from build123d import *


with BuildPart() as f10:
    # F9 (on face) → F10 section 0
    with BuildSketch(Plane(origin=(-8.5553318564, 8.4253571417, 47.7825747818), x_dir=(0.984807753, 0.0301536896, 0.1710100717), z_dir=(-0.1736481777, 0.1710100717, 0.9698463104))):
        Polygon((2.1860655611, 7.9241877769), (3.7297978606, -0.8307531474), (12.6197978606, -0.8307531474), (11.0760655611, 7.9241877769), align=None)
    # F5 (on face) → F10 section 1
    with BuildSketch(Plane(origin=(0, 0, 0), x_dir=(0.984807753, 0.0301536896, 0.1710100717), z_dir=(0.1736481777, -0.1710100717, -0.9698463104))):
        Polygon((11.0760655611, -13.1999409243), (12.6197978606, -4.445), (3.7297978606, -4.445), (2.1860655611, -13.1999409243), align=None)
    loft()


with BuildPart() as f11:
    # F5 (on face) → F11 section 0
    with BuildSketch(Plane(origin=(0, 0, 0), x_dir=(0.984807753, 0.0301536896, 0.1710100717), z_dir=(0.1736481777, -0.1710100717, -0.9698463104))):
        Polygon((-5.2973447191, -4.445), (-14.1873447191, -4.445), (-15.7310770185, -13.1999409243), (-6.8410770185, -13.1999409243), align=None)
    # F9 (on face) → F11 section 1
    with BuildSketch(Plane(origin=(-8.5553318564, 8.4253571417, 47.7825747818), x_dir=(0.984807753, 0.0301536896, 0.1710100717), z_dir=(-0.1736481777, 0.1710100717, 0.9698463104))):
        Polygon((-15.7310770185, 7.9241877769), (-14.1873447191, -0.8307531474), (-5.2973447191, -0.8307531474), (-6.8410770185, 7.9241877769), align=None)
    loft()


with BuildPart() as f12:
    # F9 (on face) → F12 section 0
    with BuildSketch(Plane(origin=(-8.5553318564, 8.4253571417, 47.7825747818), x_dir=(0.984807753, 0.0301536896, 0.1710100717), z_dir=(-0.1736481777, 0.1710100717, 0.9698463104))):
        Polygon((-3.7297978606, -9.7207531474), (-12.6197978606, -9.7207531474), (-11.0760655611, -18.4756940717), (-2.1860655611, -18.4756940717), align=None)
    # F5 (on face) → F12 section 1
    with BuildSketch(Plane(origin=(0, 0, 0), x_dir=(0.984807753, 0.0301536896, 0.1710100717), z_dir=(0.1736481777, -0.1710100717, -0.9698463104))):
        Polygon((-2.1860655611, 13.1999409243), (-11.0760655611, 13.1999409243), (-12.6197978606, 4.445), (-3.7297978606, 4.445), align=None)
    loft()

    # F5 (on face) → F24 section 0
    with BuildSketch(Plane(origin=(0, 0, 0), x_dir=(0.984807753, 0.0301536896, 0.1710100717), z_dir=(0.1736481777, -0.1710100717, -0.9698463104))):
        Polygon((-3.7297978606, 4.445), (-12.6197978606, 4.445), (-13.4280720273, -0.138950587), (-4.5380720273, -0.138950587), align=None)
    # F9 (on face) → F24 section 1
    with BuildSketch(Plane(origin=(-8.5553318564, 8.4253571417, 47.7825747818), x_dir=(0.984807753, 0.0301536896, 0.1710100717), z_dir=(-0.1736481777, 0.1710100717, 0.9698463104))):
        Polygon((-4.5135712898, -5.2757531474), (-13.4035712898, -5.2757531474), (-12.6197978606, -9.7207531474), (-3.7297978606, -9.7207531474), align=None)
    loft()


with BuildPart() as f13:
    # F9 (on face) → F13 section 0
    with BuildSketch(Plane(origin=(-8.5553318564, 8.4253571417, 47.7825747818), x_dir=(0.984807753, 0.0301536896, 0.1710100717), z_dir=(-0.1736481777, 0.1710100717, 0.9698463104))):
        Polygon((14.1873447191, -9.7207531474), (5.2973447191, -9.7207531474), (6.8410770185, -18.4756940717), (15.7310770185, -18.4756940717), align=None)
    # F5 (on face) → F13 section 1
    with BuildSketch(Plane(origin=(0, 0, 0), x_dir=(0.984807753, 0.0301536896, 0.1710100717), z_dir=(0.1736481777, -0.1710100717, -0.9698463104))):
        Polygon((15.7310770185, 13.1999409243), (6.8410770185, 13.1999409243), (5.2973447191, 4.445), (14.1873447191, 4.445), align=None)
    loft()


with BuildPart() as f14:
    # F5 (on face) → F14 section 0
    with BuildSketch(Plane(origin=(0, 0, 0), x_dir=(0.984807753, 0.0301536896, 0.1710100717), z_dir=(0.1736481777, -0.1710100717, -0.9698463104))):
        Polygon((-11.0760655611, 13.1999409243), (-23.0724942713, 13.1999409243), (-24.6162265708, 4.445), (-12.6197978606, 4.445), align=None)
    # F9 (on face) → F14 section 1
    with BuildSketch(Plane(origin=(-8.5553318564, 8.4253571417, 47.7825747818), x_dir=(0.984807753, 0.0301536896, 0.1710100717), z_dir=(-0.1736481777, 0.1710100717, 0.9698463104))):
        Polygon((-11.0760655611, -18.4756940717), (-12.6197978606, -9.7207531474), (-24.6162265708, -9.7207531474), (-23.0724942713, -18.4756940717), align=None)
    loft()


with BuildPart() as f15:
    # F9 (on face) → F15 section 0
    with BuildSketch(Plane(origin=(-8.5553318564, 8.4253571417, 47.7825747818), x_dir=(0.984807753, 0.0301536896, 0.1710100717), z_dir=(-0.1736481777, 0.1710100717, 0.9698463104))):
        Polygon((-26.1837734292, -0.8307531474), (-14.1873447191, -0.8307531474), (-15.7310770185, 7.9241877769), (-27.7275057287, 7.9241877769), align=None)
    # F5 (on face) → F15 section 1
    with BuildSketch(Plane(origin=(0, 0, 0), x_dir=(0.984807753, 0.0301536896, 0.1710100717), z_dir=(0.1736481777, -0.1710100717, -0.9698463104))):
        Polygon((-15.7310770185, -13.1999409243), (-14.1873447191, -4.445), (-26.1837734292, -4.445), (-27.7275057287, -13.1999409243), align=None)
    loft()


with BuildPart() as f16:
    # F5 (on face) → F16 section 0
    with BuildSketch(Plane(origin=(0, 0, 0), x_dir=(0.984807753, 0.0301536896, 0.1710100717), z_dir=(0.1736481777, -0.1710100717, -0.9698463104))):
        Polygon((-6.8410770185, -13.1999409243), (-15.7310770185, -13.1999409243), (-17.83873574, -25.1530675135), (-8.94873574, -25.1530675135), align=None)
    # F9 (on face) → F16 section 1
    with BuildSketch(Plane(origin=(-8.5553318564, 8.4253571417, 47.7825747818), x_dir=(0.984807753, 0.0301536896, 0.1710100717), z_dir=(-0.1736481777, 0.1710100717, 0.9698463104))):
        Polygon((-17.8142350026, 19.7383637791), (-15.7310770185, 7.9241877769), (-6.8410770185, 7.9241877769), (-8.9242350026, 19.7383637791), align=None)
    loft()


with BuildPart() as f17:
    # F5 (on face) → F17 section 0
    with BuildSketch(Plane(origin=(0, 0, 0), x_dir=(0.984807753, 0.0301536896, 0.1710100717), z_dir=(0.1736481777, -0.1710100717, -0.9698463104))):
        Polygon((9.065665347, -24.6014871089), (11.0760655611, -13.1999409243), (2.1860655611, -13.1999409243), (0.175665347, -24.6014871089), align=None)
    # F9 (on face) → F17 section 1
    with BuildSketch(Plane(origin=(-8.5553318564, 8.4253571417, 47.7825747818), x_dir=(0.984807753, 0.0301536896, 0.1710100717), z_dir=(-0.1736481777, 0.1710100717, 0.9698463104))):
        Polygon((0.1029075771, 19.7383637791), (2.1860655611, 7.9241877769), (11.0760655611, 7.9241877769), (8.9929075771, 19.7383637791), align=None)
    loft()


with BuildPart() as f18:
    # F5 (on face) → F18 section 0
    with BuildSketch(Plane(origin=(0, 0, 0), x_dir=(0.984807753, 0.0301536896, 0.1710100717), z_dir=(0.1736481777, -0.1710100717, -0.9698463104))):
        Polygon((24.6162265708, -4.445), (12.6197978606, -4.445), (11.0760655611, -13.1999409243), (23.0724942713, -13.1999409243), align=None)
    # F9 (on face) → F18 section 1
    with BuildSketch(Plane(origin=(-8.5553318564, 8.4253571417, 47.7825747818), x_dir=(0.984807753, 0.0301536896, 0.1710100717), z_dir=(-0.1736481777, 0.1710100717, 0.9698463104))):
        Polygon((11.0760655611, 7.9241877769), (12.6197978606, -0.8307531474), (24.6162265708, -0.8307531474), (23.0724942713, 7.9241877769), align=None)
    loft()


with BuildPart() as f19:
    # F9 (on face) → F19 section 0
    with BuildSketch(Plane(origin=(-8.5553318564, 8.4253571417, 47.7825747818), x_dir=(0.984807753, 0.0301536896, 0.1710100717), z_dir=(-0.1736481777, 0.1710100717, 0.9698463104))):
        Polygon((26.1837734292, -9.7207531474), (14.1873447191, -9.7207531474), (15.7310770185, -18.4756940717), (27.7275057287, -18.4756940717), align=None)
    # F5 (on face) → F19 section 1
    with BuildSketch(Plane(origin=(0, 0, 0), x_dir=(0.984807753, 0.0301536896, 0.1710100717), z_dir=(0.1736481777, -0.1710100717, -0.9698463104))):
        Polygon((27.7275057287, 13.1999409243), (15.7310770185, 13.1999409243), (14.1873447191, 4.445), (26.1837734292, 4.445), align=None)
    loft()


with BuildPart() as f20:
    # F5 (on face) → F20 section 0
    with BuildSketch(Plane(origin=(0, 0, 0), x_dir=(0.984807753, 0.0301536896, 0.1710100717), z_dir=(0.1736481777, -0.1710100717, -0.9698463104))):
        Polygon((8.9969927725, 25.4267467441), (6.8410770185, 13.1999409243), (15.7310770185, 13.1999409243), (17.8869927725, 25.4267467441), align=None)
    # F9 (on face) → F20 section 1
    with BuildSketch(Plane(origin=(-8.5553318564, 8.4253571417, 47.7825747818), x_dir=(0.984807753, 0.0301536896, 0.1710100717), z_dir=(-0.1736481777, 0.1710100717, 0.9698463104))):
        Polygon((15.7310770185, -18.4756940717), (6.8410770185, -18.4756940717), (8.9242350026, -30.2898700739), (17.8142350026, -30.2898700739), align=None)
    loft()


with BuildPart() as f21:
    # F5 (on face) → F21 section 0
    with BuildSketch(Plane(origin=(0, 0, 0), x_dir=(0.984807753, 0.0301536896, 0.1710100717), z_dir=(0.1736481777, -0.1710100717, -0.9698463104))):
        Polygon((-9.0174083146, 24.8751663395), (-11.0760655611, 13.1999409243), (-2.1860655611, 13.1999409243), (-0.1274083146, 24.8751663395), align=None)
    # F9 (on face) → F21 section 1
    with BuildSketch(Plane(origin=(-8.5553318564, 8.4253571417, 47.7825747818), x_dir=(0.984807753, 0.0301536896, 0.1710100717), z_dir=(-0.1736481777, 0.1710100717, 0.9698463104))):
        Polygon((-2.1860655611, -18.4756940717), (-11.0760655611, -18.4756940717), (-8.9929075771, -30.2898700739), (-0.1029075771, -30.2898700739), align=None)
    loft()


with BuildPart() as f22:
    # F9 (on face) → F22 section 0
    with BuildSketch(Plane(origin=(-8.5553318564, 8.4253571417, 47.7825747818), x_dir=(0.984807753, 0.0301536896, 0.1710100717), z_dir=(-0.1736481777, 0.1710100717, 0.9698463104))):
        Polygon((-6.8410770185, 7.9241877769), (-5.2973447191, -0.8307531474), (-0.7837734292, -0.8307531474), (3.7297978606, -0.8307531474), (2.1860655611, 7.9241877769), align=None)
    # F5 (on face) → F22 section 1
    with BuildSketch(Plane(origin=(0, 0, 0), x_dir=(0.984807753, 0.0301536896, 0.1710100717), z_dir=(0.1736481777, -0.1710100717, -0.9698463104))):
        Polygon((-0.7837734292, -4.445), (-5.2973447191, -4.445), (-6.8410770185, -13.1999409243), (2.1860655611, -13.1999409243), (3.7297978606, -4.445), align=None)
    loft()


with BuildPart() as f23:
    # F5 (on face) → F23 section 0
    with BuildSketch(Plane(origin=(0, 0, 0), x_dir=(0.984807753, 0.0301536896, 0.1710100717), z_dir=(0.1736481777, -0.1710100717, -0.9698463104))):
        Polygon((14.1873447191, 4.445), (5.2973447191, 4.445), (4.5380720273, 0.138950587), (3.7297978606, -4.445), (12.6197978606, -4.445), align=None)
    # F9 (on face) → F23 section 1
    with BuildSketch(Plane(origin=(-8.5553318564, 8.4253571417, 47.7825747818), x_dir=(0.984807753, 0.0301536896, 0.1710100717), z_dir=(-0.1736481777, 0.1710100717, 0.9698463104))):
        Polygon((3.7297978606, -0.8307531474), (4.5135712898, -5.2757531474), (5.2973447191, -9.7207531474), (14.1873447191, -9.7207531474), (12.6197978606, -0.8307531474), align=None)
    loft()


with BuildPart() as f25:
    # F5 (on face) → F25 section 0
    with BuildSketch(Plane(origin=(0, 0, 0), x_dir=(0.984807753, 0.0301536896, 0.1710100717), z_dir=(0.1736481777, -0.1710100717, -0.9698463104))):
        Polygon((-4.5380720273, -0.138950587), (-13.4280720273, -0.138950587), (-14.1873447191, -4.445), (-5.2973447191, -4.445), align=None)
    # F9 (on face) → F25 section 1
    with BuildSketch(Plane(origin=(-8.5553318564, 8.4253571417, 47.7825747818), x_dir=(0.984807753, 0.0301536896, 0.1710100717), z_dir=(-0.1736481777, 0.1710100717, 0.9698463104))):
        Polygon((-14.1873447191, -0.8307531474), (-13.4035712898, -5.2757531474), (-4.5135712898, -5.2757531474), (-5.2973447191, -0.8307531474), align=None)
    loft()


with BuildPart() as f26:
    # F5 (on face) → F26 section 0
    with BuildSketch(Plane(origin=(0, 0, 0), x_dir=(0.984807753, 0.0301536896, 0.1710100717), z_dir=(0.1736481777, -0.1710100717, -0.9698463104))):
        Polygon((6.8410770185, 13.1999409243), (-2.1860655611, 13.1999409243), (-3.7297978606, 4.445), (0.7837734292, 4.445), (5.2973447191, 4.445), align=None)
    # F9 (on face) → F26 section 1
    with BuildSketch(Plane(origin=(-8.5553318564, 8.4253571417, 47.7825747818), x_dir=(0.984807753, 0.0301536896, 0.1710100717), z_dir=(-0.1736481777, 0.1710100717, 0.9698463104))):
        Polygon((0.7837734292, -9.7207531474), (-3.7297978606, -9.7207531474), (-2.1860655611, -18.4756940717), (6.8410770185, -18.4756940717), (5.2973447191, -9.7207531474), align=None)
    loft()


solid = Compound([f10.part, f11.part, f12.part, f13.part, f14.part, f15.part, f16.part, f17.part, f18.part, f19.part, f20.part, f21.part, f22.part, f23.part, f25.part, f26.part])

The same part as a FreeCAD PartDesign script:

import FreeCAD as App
import Part
import Sketcher
Q = App.Units.Quantity


def add_polygon(sketch, points):
    """Adds a closed chain of lines whose ends are joined by coincident constraints."""
    first, n = sketch.GeometryCount, len(points)
    for a, b in zip(points, points[1:] + points[:1]):
        sketch.addGeometry(Part.LineSegment(App.Vector(*a, 0), App.Vector(*b, 0)), False)
    for i in range(n):
        sketch.addConstraint(Sketcher.Constraint("Coincident", first + i, 2, first + (i + 1) % n, 1))

doc = App.newDocument("Part")
body = doc.addObject("PartDesign::Body", "Body")

# Sketch on an angled plane
sketch1 = body.newObject("Sketcher::SketchObject", "Sketch")
sketch1.Placement = App.Placement(App.Vector(-8.555332, 8.425357, 47.782575), App.Rotation(App.Vector(0.984807753, 0.03015369, 0.171010072), App.Vector(0, 0.984807753, -0.173648178), App.Vector(-0.173648178, 0.171010072, 0.96984631), "ZXY"))
add_polygon(sketch1, [(2, 8), (4, -1), (13, -1), (11, 8)])  # lines 0-3
sketch1.addConstraint([
    Sketcher.Constraint("Horizontal", 1),
    Sketcher.Constraint("Horizontal", 3),
    Sketcher.Constraint("Parallel", 0, 2),
    Sketcher.Constraint("Angle", 0, Q("-80 deg")),
    Sketcher.Constraint("DistanceX", 1, 1, 1, 2, Q("0.35 in")),
    Sketcher.Constraint("Distance", 0, Q("0.35 in")),
    Sketcher.Constraint("DistanceX", -1, 1, 0, 2, Q("3.729798 mm")),
    Sketcher.Constraint("DistanceY", 0, 2, -1, 1, Q("0.830753 mm")),
])

# Sketch on an angled plane
sketch2 = body.newObject("Sketcher::SketchObject", "Sketch001")
sketch2.Placement = App.Placement(App.Vector(0, 0, 0), App.Rotation(App.Vector(0.984807753, 0.03015369, 0.171010072), App.Vector(0, -0.984807753, 0.173648178), App.Vector(0.173648178, -0.171010072, -0.96984631), "ZXY"))
add_polygon(sketch2, [(11, -13), (13, -4), (4, -4), (2, -13)])  # lines 0-3
sketch2.addConstraint([
    Sketcher.Constraint("Horizontal", 1),
    Sketcher.Constraint("Horizontal", 3),
    Sketcher.Constraint("Parallel", 0, 2),
    Sketcher.Constraint("Angle", 0, Q("80 deg")),
    Sketcher.Constraint("DistanceX", 1, 2, 1, 1, Q("0.35 in")),
    Sketcher.Constraint("Distance", 0, Q("0.35 in")),
    Sketcher.Constraint("DistanceY", 0, 2, -1, 1, Q("0.175 in")),
    Sketcher.Constraint("DistanceX", -1, 1, 0, 2, Q("12.619798 mm")),
])

additiveloft = body.newObject("PartDesign::AdditiveLoft", "AdditiveLoft")
additiveloft.Profile = sketch1
additiveloft.Sections = [sketch2]
body2 = doc.addObject("PartDesign::Body", "Body001")

# Sketch on an angled plane
sketch3 = body2.newObject("Sketcher::SketchObject", "Sketch002")
sketch3.Placement = App.Placement(App.Vector(0, 0, 0), App.Rotation(App.Vector(0.984807753, 0.03015369, 0.171010072), App.Vector(0, -0.984807753, 0.173648178), App.Vector(0.173648178, -0.171010072, -0.96984631), "ZXY"))
add_polygon(sketch3, [(-5, -4), (-14, -4), (-16, -13), (-7, -13)])  # lines 0-3
sketch3.addConstraint([
    Sketcher.Constraint("Horizontal", 0),
    Sketcher.Constraint("Horizontal", 2),
    Sketcher.Constraint("Parallel", 1, 3),
    Sketcher.Constraint("Angle", 1, Q("-100 deg")),
    Sketcher.Constraint("DistanceX", 0, 2, 0, 1, Q("0.35 in")),
    Sketcher.Constraint("Distance", 1, Q("0.35 in")),
    Sketcher.Constraint("DistanceY", 0, 2, -1, 1, Q("0.175 in")),
    Sketcher.Constraint("DistanceX", 0, 2, -1, 1, Q("14.187345 mm")),
])

# Sketch on an angled plane
sketch4 = body2.newObject("Sketcher::SketchObject", "Sketch003")
sketch4.Placement = App.Placement(App.Vector(-8.555332, 8.425357, 47.782575), App.Rotation(App.Vector(0.984807753, 0.03015369, 0.171010072), App.Vector(0, 0.984807753, -0.173648178), App.Vector(-0.173648178, 0.171010072, 0.96984631), "ZXY"))
add_polygon(sketch4, [(-16, 8), (-14, -1), (-5, -1), (-7, 8)])  # lines 0-3
sketch4.addConstraint([
    Sketcher.Constraint("Horizontal", 1),
    Sketcher.Constraint("Horizontal", 3),
    Sketcher.Constraint("Parallel", 0, 2),
    Sketcher.Constraint("Angle", 0, Q("-80 deg")),
    Sketcher.Constraint("DistanceX", 1, 1, 1, 2, Q("0.35 in")),
    Sketcher.Constraint("Distance", 0, Q("0.35 in")),
    Sketcher.Constraint("DistanceX", 0, 2, -1, 1, Q("14.187345 mm")),
    Sketcher.Constraint("DistanceY", 0, 2, -1, 1, Q("0.830753 mm")),
])

additiveloft2 = body2.newObject("PartDesign::AdditiveLoft", "AdditiveLoft001")
additiveloft2.Profile = sketch3
additiveloft2.Sections = [sketch4]
body3 = doc.addObject("PartDesign::Body", "Body002")

# Sketch on an angled plane
sketch5 = body3.newObject("Sketcher::SketchObject", "Sketch004")
sketch5.Placement = App.Placement(App.Vector(-8.555332, 8.425357, 47.782575), App.Rotation(App.Vector(0.984807753, 0.03015369, 0.171010072), App.Vector(0, 0.984807753, -0.173648178), App.Vector(-0.173648178, 0.171010072, 0.96984631), "ZXY"))
add_polygon(sketch5, [(-4, -10), (-13, -10), (-11, -18), (-2, -18)])  # lines 0-3
sketch5.addConstraint([
    Sketcher.Constraint("Horizontal", 0),
    Sketcher.Constraint("Horizontal", 2),
    Sketcher.Constraint("Parallel", 1, 3),
    Sketcher.Constraint("Angle", 1, Q("-80 deg")),
    Sketcher.Constraint("DistanceX", 0, 2, 0, 1, Q("0.35 in")),
    Sketcher.Constraint("Distance", 1, Q("0.35 in")),
    Sketcher.Constraint("DistanceX", 0, 2, -1, 1, Q("12.619798 mm")),
    Sketcher.Constraint("DistanceY", 0, 2, -1, 1, Q("9.720753 mm")),
])

# Sketch on an angled plane
sketch6 = body3.newObject("Sketcher::SketchObject", "Sketch005")
sketch6.Placement = App.Placement(App.Vector(0, 0, 0), App.Rotation(App.Vector(0.984807753, 0.03015369, 0.171010072), App.Vector(0, -0.984807753, 0.173648178), App.Vector(0.173648178, -0.171010072, -0.96984631), "ZXY"))
add_polygon(sketch6, [(-2, 13), (-11, 13), (-13, 4), (-4, 4)])  # lines 0-3
sketch6.addConstraint([
    Sketcher.Constraint("Horizontal", 0),
    Sketcher.Constraint("Horizontal", 2),
    Sketcher.Constraint("Parallel", 1, 3),
    Sketcher.Constraint("Angle", 1, Q("-100 deg")),
    Sketcher.Constraint("DistanceX", 0, 2, 0, 1, Q("0.35 in")),
    Sketcher.Constraint("Distance", 1, Q("0.35 in")),
    Sketcher.Constraint("DistanceY", -1, 1, 1, 2, Q("0.175 in")),
    Sketcher.Constraint("DistanceX", 0, 2, -1, 1, Q("11.076066 mm")),
])

additiveloft3 = body3.newObject("PartDesign::AdditiveLoft", "AdditiveLoft002")
additiveloft3.Profile = sketch5
additiveloft3.Sections = [sketch6]

# Sketch on an angled plane
sketch7 = body3.newObject("Sketcher::SketchObject", "Sketch006")
sketch7.Placement = App.Placement(App.Vector(0, 0, 0), App.Rotation(App.Vector(0.984807753, 0.03015369, 0.171010072), App.Vector(0, -0.984807753, 0.173648178), App.Vector(0.173648178, -0.171010072, -0.96984631), "ZXY"))
add_polygon(sketch7, [(-3.7, 4.4), (-12.6, 4.4), (-13.4, -0.1), (-4.5, -0.1)])  # lines 0-3
sketch7.addConstraint([
    Sketcher.Constraint("Horizontal", 0),
    Sketcher.Constraint("Horizontal", 2),
    Sketcher.Constraint("Parallel", 1, 3),
    Sketcher.Constraint("Angle", 1, Q("-100 deg")),
    Sketcher.Constraint("DistanceX", 0, 2, 0, 1, Q("0.35 in")),
    Sketcher.Constraint("DistanceY", -1, 1, 0, 2, Q("0.175 in")),
    Sketcher.Constraint("DistanceY", 1, 2, -1, 1, Q("0.138951 mm")),
    Sketcher.Constraint("DistanceX", 0, 2, -1, 1, Q("12.619798 mm")),
])

# Sketch on an angled plane
sketch8 = body3.newObject("Sketcher::SketchObject", "Sketch007")
sketch8.Placement = App.Placement(App.Vector(-8.555332, 8.425357, 47.782575), App.Rotation(App.Vector(0.984807753, 0.03015369, 0.171010072), App.Vector(0, 0.984807753, -0.173648178), App.Vector(-0.173648178, 0.171010072, 0.96984631), "ZXY"))
add_polygon(sketch8, [(-4.5, -5.3), (-13.4, -5.3), (-12.6, -9.7), (-3.7, -9.7)])  # lines 0-3
sketch8.addConstraint([
    Sketcher.Constraint("Horizontal", 0),
    Sketcher.Constraint("Horizontal", 2),
    Sketcher.Constraint("Parallel", 1, 3),
    Sketcher.Constraint("Angle", 1, Q("-80 deg")),
    Sketcher.Constraint("DistanceX", 0, 2, 0, 1, Q("0.35 in")),
    Sketcher.Constraint("DistanceY", 1, 2, 0, 2, Q("0.175 in")),
    Sketcher.Constraint("DistanceX", 0, 2, -1, 1, Q("13.403571 mm")),
    Sketcher.Constraint("DistanceY", 0, 2, -1, 1, Q("5.275753 mm")),
])

additiveloft4 = body3.newObject("PartDesign::AdditiveLoft", "AdditiveLoft003")
additiveloft4.Profile = sketch7
additiveloft4.Sections = [sketch8]
body4 = doc.addObject("PartDesign::Body", "Body003")

# Sketch on an angled plane
sketch9 = body4.newObject("Sketcher::SketchObject", "Sketch008")
sketch9.Placement = App.Placement(App.Vector(-8.555332, 8.425357, 47.782575), App.Rotation(App.Vector(0.984807753, 0.03015369, 0.171010072), App.Vector(0, 0.984807753, -0.173648178), App.Vector(-0.173648178, 0.171010072, 0.96984631), "ZXY"))
add_polygon(sketch9, [(14, -10), (5, -10), (7, -18), (16, -18)])  # lines 0-3
sketch9.addConstraint([
    Sketcher.Constraint("Horizontal", 0),
    Sketcher.Constraint("Horizontal", 2),
    Sketcher.Constraint("Parallel", 1, 3),
    Sketcher.Constraint("Angle", 1, Q("-80 deg")),
    Sketcher.Constraint("DistanceX", 0, 2, 0, 1, Q("0.35 in")),
    Sketcher.Constraint("Distance", 1, Q("0.35 in")),
    Sketcher.Constraint("DistanceX", -1, 1, 0, 2, Q("5.297345 mm")),
    Sketcher.Constraint("DistanceY", 0, 2, -1, 1, Q("9.720753 mm")),
])

# Sketch on an angled plane
sketch10 = body4.newObject("Sketcher::SketchObject", "Sketch009")
sketch10.Placement = App.Placement(App.Vector(0, 0, 0), App.Rotation(App.Vector(0.984807753, 0.03015369, 0.171010072), App.Vector(0, -0.984807753, 0.173648178), App.Vector(0.173648178, -0.171010072, -0.96984631), "ZXY"))
add_polygon(sketch10, [(16, 13), (7, 13), (5, 4), (14, 4)])  # lines 0-3
sketch10.addConstraint([
    Sketcher.Constraint("Horizontal", 0),
    Sketcher.Constraint("Horizontal", 2),
    Sketcher.Constraint("Parallel", 1, 3),
    Sketcher.Constraint("Angle", 1, Q("-100 deg")),
    Sketcher.Constraint("DistanceX", 0, 2, 0, 1, Q("0.35 in")),
    Sketcher.Constraint("Distance", 1, Q("0.35 in")),
    Sketcher.Constraint("DistanceY", -1, 1, 1, 2, Q("0.175 in")),
    Sketcher.Constraint("DistanceX", -1, 1, 0, 2, Q("6.841077 mm")),
])

additiveloft5 = body4.newObject("PartDesign::AdditiveLoft", "AdditiveLoft004")
additiveloft5.Profile = sketch9
additiveloft5.Sections = [sketch10]
body5 = doc.addObject("PartDesign::Body", "Body004")

# Sketch on an angled plane
sketch11 = body5.newObject("Sketcher::SketchObject", "Sketch010")
sketch11.Placement = App.Placement(App.Vector(0, 0, 0), App.Rotation(App.Vector(0.984807753, 0.03015369, 0.171010072), App.Vector(0, -0.984807753, 0.173648178), App.Vector(0.173648178, -0.171010072, -0.96984631), "ZXY"))
add_polygon(sketch11, [(-11, 13), (-23, 13), (-25, 4), (-13, 4)])  # lines 0-3
sketch11.addConstraint([
    Sketcher.Constraint("Horizontal", 0),
    Sketcher.Constraint("Horizontal", 2),
    Sketcher.Constraint("Parallel", 1, 3),
    Sketcher.Constraint("Angle", 1, Q("-100 deg")),
    Sketcher.Constraint("Distance", 1, Q("0.35 in")),
    Sketcher.Constraint("DistanceY", -1, 1, 1, 2, Q("0.175 in")),
    Sketcher.Constraint("DistanceX", 0, 2, 0, 1, Q("11.996429 mm")),
    Sketcher.Constraint("DistanceX", 0, 2, -1, 1, Q("23.072494 mm")),
])

# Sketch on an angled plane
sketch12 = body5.newObject("Sketcher::SketchObject", "Sketch011")
sketch12.Placement = App.Placement(App.Vector(-8.555332, 8.425357, 47.782575), App.Rotation(App.Vector(0.984807753, 0.03015369, 0.171010072), App.Vector(0, 0.984807753, -0.173648178), App.Vector(-0.173648178, 0.171010072, 0.96984631), "ZXY"))
add_polygon(sketch12, [(-11, -18), (-13, -10), (-25, -10), (-23, -18)])  # lines 0-3
sketch12.addConstraint([
    Sketcher.Constraint("Horizontal", 1),
    Sketcher.Constraint("Horizontal", 3),
    Sketcher.Constraint("Parallel", 0, 2),
    Sketcher.Constraint("Angle", 0, Q("100 deg")),
    Sketcher.Constraint("Distance", 0, Q("0.35 in")),
    Sketcher.Constraint("DistanceX", 1, 2, 1, 1, Q("11.996429 mm")),
    Sketcher.Constraint("DistanceX", 0, 2, -1, 1, Q("12.619798 mm")),
    Sketcher.Constraint("DistanceY", 0, 2, -1, 1, Q("9.720753 mm")),
])

additiveloft6 = body5.newObject("PartDesign::AdditiveLoft", "AdditiveLoft005")
additiveloft6.Profile = sketch11
additiveloft6.Sections = [sketch12]
body6 = doc.addObject("PartDesign::Body", "Body005")

# Sketch on an angled plane
sketch13 = body6.newObject("Sketcher::SketchObject", "Sketch012")
sketch13.Placement = App.Placement(App.Vector(-8.555332, 8.425357, 47.782575), App.Rotation(App.Vector(0.984807753, 0.03015369, 0.171010072), App.Vector(0, 0.984807753, -0.173648178), App.Vector(-0.173648178, 0.171010072, 0.96984631), "ZXY"))
add_polygon(sketch13, [(-26, -1), (-14, -1), (-16, 8), (-28, 8)])  # lines 0-3
sketch13.addConstraint([
    Sketcher.Constraint("Horizontal", 0),
    Sketcher.Constraint("Horizontal", 2),
    Sketcher.Constraint("Parallel", 1, 3),
    Sketcher.Constraint("Angle", 1, Q("100 deg")),
    Sketcher.Constraint("Distance", 1, Q("0.35 in")),
    Sketcher.Constraint("DistanceX", 0, 1, 0, 2, Q("11.996429 mm")),
    Sketcher.Constraint("DistanceX", 0, 2, -1, 1, Q("14.187345 mm")),
    Sketcher.Constraint("DistanceY", 0, 2, -1, 1, Q("0.830753 mm")),
])

# Sketch on an angled plane
sketch14 = body6.newObject("Sketcher::SketchObject", "Sketch013")
sketch14.Placement = App.Placement(App.Vector(0, 0, 0), App.Rotation(App.Vector(0.984807753, 0.03015369, 0.171010072), App.Vector(0, -0.984807753, 0.173648178), App.Vector(0.173648178, -0.171010072, -0.96984631), "ZXY"))
add_polygon(sketch14, [(-16, -13), (-14, -4), (-26, -4), (-28, -13)])  # lines 0-3
sketch14.addConstraint([
    Sketcher.Constraint("Horizontal", 1),
    Sketcher.Constraint("Horizontal", 3),
    Sketcher.Constraint("Parallel", 0, 2),
    Sketcher.Constraint("Angle", 0, Q("80 deg")),
    Sketcher.Constraint("Distance", 0, Q("0.35 in")),
    Sketcher.Constraint("DistanceY", 0, 2, -1, 1, Q("0.175 in")),
    Sketcher.Constraint("DistanceX", 1, 2, 1, 1, Q("11.996429 mm")),
    Sketcher.Constraint("DistanceX", 0, 2, -1, 1, Q("14.187345 mm")),
])

additiveloft7 = body6.newObject("PartDesign::AdditiveLoft", "AdditiveLoft006")
additiveloft7.Profile = sketch13
additiveloft7.Sections = [sketch14]
body7 = doc.addObject("PartDesign::Body", "Body006")

# Sketch on an angled plane
sketch15 = body7.newObject("Sketcher::SketchObject", "Sketch014")
sketch15.Placement = App.Placement(App.Vector(0, 0, 0), App.Rotation(App.Vector(0.984807753, 0.03015369, 0.171010072), App.Vector(0, -0.984807753, 0.173648178), App.Vector(0.173648178, -0.171010072, -0.96984631), "ZXY"))
add_polygon(sketch15, [(-7, -13), (-16, -13), (-18, -25), (-9, -25)])  # lines 0-3
sketch15.addConstraint([
    Sketcher.Constraint("Horizontal", 0),
    Sketcher.Constraint("Horizontal", 2),
    Sketcher.Constraint("Parallel", 1, 3),
    Sketcher.Constraint("Angle", 1, Q("-100 deg")),
    Sketcher.Constraint("DistanceX", 0, 2, 0, 1, Q("0.35 in")),
    Sketcher.Constraint("DistanceY", 0, 2, -1, 1, Q("13.199941 mm")),
    Sketcher.Constraint("DistanceX", 1, 2, 0, 2, Q("2.107659 mm")),
    Sketcher.Constraint("DistanceX", 0, 2, -1, 1, Q("15.731077 mm")),
])

# Sketch on an angled plane
sketch16 = body7.newObject("Sketcher::SketchObject", "Sketch015")
sketch16.Placement = App.Placement(App.Vector(-8.555332, 8.425357, 47.782575), App.Rotation(App.Vector(0.984807753, 0.03015369, 0.171010072), App.Vector(0, 0.984807753, -0.173648178), App.Vector(-0.173648178, 0.171010072, 0.96984631), "ZXY"))
add_polygon(sketch16, [(-18, 20), (-16, 8), (-7, 8), (-9, 20)])  # lines 0-3
sketch16.addConstraint([
    Sketcher.Constraint("Horizontal", 1),
    Sketcher.Constraint("Horizontal", 3),
    Sketcher.Constraint("Parallel", 0, 2),
    Sketcher.Constraint("Angle", 0, Q("-80 deg")),
    Sketcher.Constraint("DistanceX", 1, 1, 1, 2, Q("0.35 in")),
    Sketcher.Constraint("Distance", 0, Q("11.996429 mm")),
    Sketcher.Constraint("DistanceX", 0, 2, -1, 1, Q("15.731077 mm")),
    Sketcher.Constraint("DistanceY", -1, 1, 0, 2, Q("7.924188 mm")),
])

additiveloft8 = body7.newObject("PartDesign::AdditiveLoft", "AdditiveLoft007")
additiveloft8.Profile = sketch15
additiveloft8.Sections = [sketch16]
body8 = doc.addObject("PartDesign::Body", "Body007")

# Sketch on an angled plane
sketch17 = body8.newObject("Sketcher::SketchObject", "Sketch016")
sketch17.Placement = App.Placement(App.Vector(0, 0, 0), App.Rotation(App.Vector(0.984807753, 0.03015369, 0.171010072), App.Vector(0, -0.984807753, 0.173648178), App.Vector(0.173648178, -0.171010072, -0.96984631), "ZXY"))
add_polygon(sketch17, [(9, -25), (11, -13), (2, -13), (0, -25)])  # lines 0-3
sketch17.addConstraint([
    Sketcher.Constraint("Horizontal", 1),
    Sketcher.Constraint("Horizontal", 3),
    Sketcher.Constraint("Parallel", 0, 2),
    Sketcher.Constraint("Angle", 0, Q("80 deg")),
    Sketcher.Constraint("DistanceX", 1, 2, 1, 1, Q("0.35 in")),
    Sketcher.Constraint("DistanceX", 2, 2, 1, 2, Q("2.0104 mm")),
    Sketcher.Constraint("DistanceY", 0, 2, -1, 1, Q("13.199941 mm")),
    Sketcher.Constraint("DistanceX", -1, 1, 0, 2, Q("11.076066 mm")),
])

# Sketch on an angled plane
sketch18 = body8.newObject("Sketcher::SketchObject", "Sketch017")
sketch18.Placement = App.Placement(App.Vector(-8.555332, 8.425357, 47.782575), App.Rotation(App.Vector(0.984807753, 0.03015369, 0.171010072), App.Vector(0, 0.984807753, -0.173648178), App.Vector(-0.173648178, 0.171010072, 0.96984631), "ZXY"))
add_polygon(sketch18, [(0, 20), (2, 8), (11, 8), (9, 20)])  # lines 0-3
sketch18.addConstraint([
    Sketcher.Constraint("Horizontal", 1),
    Sketcher.Constraint("Horizontal", 3),
    Sketcher.Constraint("Parallel", 0, 2),
    Sketcher.Constraint("Angle", 0, Q("-80 deg")),
    Sketcher.Constraint("DistanceX", 1, 1, 1, 2, Q("0.35 in")),
    Sketcher.Constraint("Distance", 0, Q("11.996429 mm")),
    Sketcher.Constraint("DistanceX", -1, 1, 0, 2, Q("2.186066 mm")),
    Sketcher.Constraint("DistanceY", -1, 1, 0, 2, Q("7.924188 mm")),
])

additiveloft9 = body8.newObject("PartDesign::AdditiveLoft", "AdditiveLoft008")
additiveloft9.Profile = sketch17
additiveloft9.Sections = [sketch18]
body9 = doc.addObject("PartDesign::Body", "Body008")

# Sketch on an angled plane
sketch19 = body9.newObject("Sketcher::SketchObject", "Sketch018")
sketch19.Placement = App.Placement(App.Vector(0, 0, 0), App.Rotation(App.Vector(0.984807753, 0.03015369, 0.171010072), App.Vector(0, -0.984807753, 0.173648178), App.Vector(0.173648178, -0.171010072, -0.96984631), "ZXY"))
add_polygon(sketch19, [(25, -4), (13, -4), (11, -13), (23, -13)])  # lines 0-3
sketch19.addConstraint([
    Sketcher.Constraint("Horizontal", 0),
    Sketcher.Constraint("Horizontal", 2),
    Sketcher.Constraint("Parallel", 1, 3),
    Sketcher.Constraint("Angle", 1, Q("-100 deg")),
    Sketcher.Constraint("Distance", 1, Q("0.35 in")),
    Sketcher.Constraint("DistanceY", 0, 2, -1, 1, Q("0.175 in")),
    Sketcher.Constraint("DistanceX", 0, 2, 0, 1, Q("11.996429 mm")),
    Sketcher.Constraint("DistanceX", -1, 1, 0, 2, Q("12.619798 mm")),
])

# Sketch on an angled plane
sketch20 = body9.newObject("Sketcher::SketchObject", "Sketch019")
sketch20.Placement = App.Placement(App.Vector(-8.555332, 8.425357, 47.782575), App.Rotation(App.Vector(0.984807753, 0.03015369, 0.171010072), App.Vector(0, 0.984807753, -0.173648178), App.Vector(-0.173648178, 0.171010072, 0.96984631), "ZXY"))
add_polygon(sketch20, [(11, 8), (13, -1), (25, -1), (23, 8)])  # lines 0-3
sketch20.addConstraint([
    Sketcher.Constraint("Horizontal", 1),
    Sketcher.Constraint("Horizontal", 3),
    Sketcher.Constraint("Parallel", 0, 2),
    Sketcher.Constraint("Angle", 0, Q("-80 deg")),
    Sketcher.Constraint("Distance", 0, Q("0.35 in")),
    Sketcher.Constraint("DistanceX", 1, 1, 1, 2, Q("11.996429 mm")),
    Sketcher.Constraint("DistanceX", -1, 1, 0, 2, Q("12.619798 mm")),
    Sketcher.Constraint("DistanceY", 0, 2, -1, 1, Q("0.830753 mm")),
])

additiveloft10 = body9.newObject("PartDesign::AdditiveLoft", "AdditiveLoft009")
additiveloft10.Profile = sketch19
additiveloft10.Sections = [sketch20]
body10 = doc.addObject("PartDesign::Body", "Body009")

# Sketch on an angled plane
sketch21 = body10.newObject("Sketcher::SketchObject", "Sketch020")
sketch21.Placement = App.Placement(App.Vector(-8.555332, 8.425357, 47.782575), App.Rotation(App.Vector(0.984807753, 0.03015369, 0.171010072), App.Vector(0, 0.984807753, -0.173648178), App.Vector(-0.173648178, 0.171010072, 0.96984631), "ZXY"))
add_polygon(sketch21, [(26, -10), (14, -10), (16, -18), (28, -18)])  # lines 0-3
sketch21.addConstraint([
    Sketcher.Constraint("Horizontal", 0),
    Sketcher.Constraint("Horizontal", 2),
    Sketcher.Constraint("Parallel", 1, 3),
    Sketcher.Constraint("Angle", 1, Q("-80 deg")),
    Sketcher.Constraint("Distance", 1, Q("0.35 in")),
    Sketcher.Constraint("DistanceX", 0, 2, 0, 1, Q("11.996429 mm")),
    Sketcher.Constraint("DistanceX", -1, 1, 0, 2, Q("14.187345 mm")),
    Sketcher.Constraint("DistanceY", 0, 2, -1, 1, Q("9.720753 mm")),
])

# Sketch on an angled plane
sketch22 = body10.newObject("Sketcher::SketchObject", "Sketch021")
sketch22.Placement = App.Placement(App.Vector(0, 0, 0), App.Rotation(App.Vector(0.984807753, 0.03015369, 0.171010072), App.Vector(0, -0.984807753, 0.173648178), App.Vector(0.173648178, -0.171010072, -0.96984631), "ZXY"))
add_polygon(sketch22, [(28, 13), (16, 13), (14, 4), (26, 4)])  # lines 0-3
sketch22.addConstraint([
    Sketcher.Constraint("Horizontal", 0),
    Sketcher.Constraint("Horizontal", 2),
    Sketcher.Constraint("Parallel", 1, 3),
    Sketcher.Constraint("Angle", 1, Q("-100 deg")),
    Sketcher.Constraint("Distance", 1, Q("0.35 in")),
    Sketcher.Constraint("DistanceY", -1, 1, 1, 2, Q("0.175 in")),
    Sketcher.Constraint("DistanceX", 0, 2, 0, 1, Q("11.996429 mm")),
    Sketcher.Constraint("DistanceX", -1, 1, 0, 2, Q("15.731077 mm")),
])

additiveloft11 = body10.newObject("PartDesign::AdditiveLoft", "AdditiveLoft010")
additiveloft11.Profile = sketch21
additiveloft11.Sections = [sketch22]
body11 = doc.addObject("PartDesign::Body", "Body010")

# Sketch on an angled plane
sketch23 = body11.newObject("Sketcher::SketchObject", "Sketch022")
sketch23.Placement = App.Placement(App.Vector(0, 0, 0), App.Rotation(App.Vector(0.984807753, 0.03015369, 0.171010072), App.Vector(0, -0.984807753, 0.173648178), App.Vector(0.173648178, -0.171010072, -0.96984631), "ZXY"))
add_polygon(sketch23, [(9, 25), (7, 13), (16, 13), (18, 25)])  # lines 0-3
sketch23.addConstraint([
    Sketcher.Constraint("Horizontal", 1),
    Sketcher.Constraint("Horizontal", 3),
    Sketcher.Constraint("Parallel", 0, 2),
    Sketcher.Constraint("Angle", 0, Q("-100 deg")),
    Sketcher.Constraint("DistanceX", 1, 1, 1, 2, Q("0.35 in")),
    Sketcher.Constraint("DistanceY", -1, 1, 0, 2, Q("13.199941 mm")),
    Sketcher.Constraint("Distance", 0, Q("12.415424 mm")),
    Sketcher.Constraint("DistanceX", -1, 1, 0, 2, Q("6.841077 mm")),
])

# Sketch on an angled plane
sketch24 = body11.newObject("Sketcher::SketchObject", "Sketch023")
sketch24.Placement = App.Placement(App.Vector(-8.555332, 8.425357, 47.782575), App.Rotation(App.Vector(0.984807753, 0.03015369, 0.171010072), App.Vector(0, 0.984807753, -0.173648178), App.Vector(-0.173648178, 0.171010072, 0.96984631), "ZXY"))
add_polygon(sketch24, [(16, -18), (7, -18), (9, -30), (18, -30)])  # lines 0-3
sketch24.addConstraint([
    Sketcher.Constraint("Horizontal", 0),
    Sketcher.Constraint("Horizontal", 2),
    Sketcher.Constraint("Parallel", 1, 3),
    Sketcher.Constraint("Angle", 1, Q("-80 deg")),
    Sketcher.Constraint("DistanceX", 0, 2, 0, 1, Q("0.35 in")),
    Sketcher.Constraint("Distance", 1, Q("11.996429 mm")),
    Sketcher.Constraint("DistanceY", 1, 2, -1, 1, Q("30.28987 mm")),
    Sketcher.Constraint("DistanceX", -1, 1, 0, 2, Q("6.841077 mm")),
])

additiveloft12 = body11.newObject("PartDesign::AdditiveLoft", "AdditiveLoft011")
additiveloft12.Profile = sketch23
additiveloft12.Sections = [sketch24]
body12 = doc.addObject("PartDesign::Body", "Body011")

# Sketch on an angled plane
sketch25 = body12.newObject("Sketcher::SketchObject", "Sketch024")
sketch25.Placement = App.Placement(App.Vector(0, 0, 0), App.Rotation(App.Vector(0.984807753, 0.03015369, 0.171010072), App.Vector(0, -0.984807753, 0.173648178), App.Vector(0.173648178, -0.171010072, -0.96984631), "ZXY"))
add_polygon(sketch25, [(-9, 25), (-11, 13), (-2, 13), (0, 25)])  # lines 0-3
sketch25.addConstraint([
    Sketcher.Constraint("Horizontal", 1),
    Sketcher.Constraint("Horizontal", 3),
    Sketcher.Constraint("Parallel", 0, 2),
    Sketcher.Constraint("Angle", 0, Q("-100 deg")),
    Sketcher.Constraint("DistanceX", 1, 1, 1, 2, Q("0.35 in")),
    Sketcher.Constraint("DistanceY", -1, 1, 0, 2, Q("13.199941 mm")),
    Sketcher.Constraint("DistanceX", 2, 2, -1, 1, Q("0.127408 mm")),
    Sketcher.Constraint("Distance", 0, Q("11.855335 mm")),
])

# Sketch on an angled plane
sketch26 = body12.newObject("Sketcher::SketchObject", "Sketch025")
sketch26.Placement = App.Placement(App.Vector(-8.555332, 8.425357, 47.782575), App.Rotation(App.Vector(0.984807753, 0.03015369, 0.171010072), App.Vector(0, 0.984807753, -0.173648178), App.Vector(-0.173648178, 0.171010072, 0.96984631), "ZXY"))
add_polygon(sketch26, [(-2, -18), (-11, -18), (-9, -30), (0, -30)])  # lines 0-3
sketch26.addConstraint([
    Sketcher.Constraint("Horizontal", 0),
    Sketcher.Constraint("Horizontal", 2),
    Sketcher.Constraint("Parallel", 1, 3),
    Sketcher.Constraint("Angle", 1, Q("-80 deg")),
    Sketcher.Constraint("DistanceX", 0, 2, 0, 1, Q("0.35 in")),
    Sketcher.Constraint("Distance", 1, Q("11.996429 mm")),
    Sketcher.Constraint("DistanceY", 1, 2, -1, 1, Q("30.28987 mm")),
    Sketcher.Constraint("DistanceX", 0, 2, -1, 1, Q("11.076066 mm")),
])

additiveloft13 = body12.newObject("PartDesign::AdditiveLoft", "AdditiveLoft012")
additiveloft13.Profile = sketch25
additiveloft13.Sections = [sketch26]
body13 = doc.addObject("PartDesign::Body", "Body012")

# Sketch on an angled plane
sketch27 = body13.newObject("Sketcher::SketchObject", "Sketch026")
sketch27.Placement = App.Placement(App.Vector(-8.555332, 8.425357, 47.782575), App.Rotation(App.Vector(0.984807753, 0.03015369, 0.171010072), App.Vector(0, 0.984807753, -0.173648178), App.Vector(-0.173648178, 0.171010072, 0.96984631), "ZXY"))
add_polygon(sketch27, [(-7, 8), (-5, -1), (4, -1), (2, 8)])  # lines 0-3
sketch27.addConstraint([
    Sketcher.Constraint("Horizontal", 1),
    Sketcher.Constraint("Horizontal", 3),
    Sketcher.Constraint("Parallel", 0, 2),
    Sketcher.Constraint("Angle", 0, Q("-80 deg")),
    Sketcher.Constraint("Distance", 0, Q("0.35 in")),
    Sketcher.Constraint("DistanceX", 1, 1, 1, 2, Q("9.027143 mm")),
    Sketcher.Constraint("DistanceX", 0, 2, -1, 1, Q("5.297345 mm")),
    Sketcher.Constraint("DistanceY", 0, 2, -1, 1, Q("0.830753 mm")),
])

# Sketch on an angled plane
sketch28 = body13.newObject("Sketcher::SketchObject", "Sketch027")
sketch28.Placement = App.Placement(App.Vector(0, 0, 0), App.Rotation(App.Vector(0.984807753, 0.03015369, 0.171010072), App.Vector(0, -0.984807753, 0.173648178), App.Vector(0.173648178, -0.171010072, -0.96984631), "ZXY"))
add_polygon(sketch28, [(-5, -4), (-7, -13), (2, -13), (4, -4)])  # lines 0-3
sketch28.addConstraint([
    Sketcher.Constraint("Horizontal", 1),
    Sketcher.Constraint("Horizontal", 3),
    Sketcher.Constraint("Parallel", 0, 2),
    Sketcher.Constraint("Angle", 0, Q("-100 deg")),
    Sketcher.Constraint("Distance", 0, Q("0.35 in")),
    Sketcher.Constraint("DistanceY", 2, 2, -1, 1, Q("0.175 in")),
    Sketcher.Constraint("DistanceX", 1, 1, 1, 2, Q("9.027143 mm")),
    Sketcher.Constraint("DistanceX", 0, 2, -1, 1, Q("6.841077 mm")),
])

additiveloft14 = body13.newObject("PartDesign::AdditiveLoft", "AdditiveLoft013")
additiveloft14.Profile = sketch27
additiveloft14.Sections = [sketch28]
body14 = doc.addObject("PartDesign::Body", "Body013")

# Sketch on an angled plane
sketch29 = body14.newObject("Sketcher::SketchObject", "Sketch028")
sketch29.Placement = App.Placement(App.Vector(0, 0, 0), App.Rotation(App.Vector(0.984807753, 0.03015369, 0.171010072), App.Vector(0, -0.984807753, 0.173648178), App.Vector(0.173648178, -0.171010072, -0.96984631), "ZXY"))
add_polygon(sketch29, [(14.2, 4.4), (5.3, 4.4), (4.5, 0.1), (3.7, -4.4), (12.6, -4.4)])  # lines 0-4
sketch29.addConstraint([
    Sketcher.Constraint("Horizontal", 0),
    Sketcher.Constraint("Horizontal", 3),
    Sketcher.Constraint("Parallel", 1, 2),
    Sketcher.Constraint("Parallel", 2, 4),
    Sketcher.Constraint("Angle", 1, Q("-100 deg")),
    Sketcher.Constraint("DistanceX", 0, 2, 0, 1, Q("0.35 in")),
    Sketcher.Constraint("DistanceY", 2, 2, 0, 2, Q("0.35 in")),
    Sketcher.Constraint("DistanceY", -1, 1, 0, 2, Q("0.175 in")),
    Sketcher.Constraint("DistanceY", -1, 1, 1, 2, Q("0.138951 mm")),
    Sketcher.Constraint("DistanceX", -1, 1, 0, 2, Q("5.297345 mm")),
])

# Sketch on an angled plane
sketch30 = body14.newObject("Sketcher::SketchObject", "Sketch029")
sketch30.Placement = App.Placement(App.Vector(-8.555332, 8.425357, 47.782575), App.Rotation(App.Vector(0.984807753, 0.03015369, 0.171010072), App.Vector(0, 0.984807753, -0.173648178), App.Vector(-0.173648178, 0.171010072, 0.96984631), "ZXY"))
add_polygon(sketch30, [(3.7, -0.8), (4.5, -5.3), (5.3, -9.7), (14.2, -9.7), (12.6, -0.8)])  # lines 0-4
sketch30.addConstraint([
    Sketcher.Constraint("Horizontal", 2),
    Sketcher.Constraint("Horizontal", 4),
    Sketcher.Constraint("Parallel", 0, 1),
    Sketcher.Constraint("Parallel", 1, 3),
    Sketcher.Constraint("Equal", 0, 1),
    Sketcher.Constraint("Angle", 0, Q("-80 deg")),
    Sketcher.Constraint("DistanceX", 2, 1, 2, 2, Q("0.35 in")),
    Sketcher.Constraint("DistanceY", 2, 2, 3, 2, Q("0.35 in")),
    Sketcher.Constraint("DistanceX", -1, 1, 0, 2, Q("4.513571 mm")),
    Sketcher.Constraint("DistanceY", 0, 2, -1, 1, Q("5.275753 mm")),
])

additiveloft15 = body14.newObject("PartDesign::AdditiveLoft", "AdditiveLoft014")
additiveloft15.Profile = sketch29
additiveloft15.Sections = [sketch30]
body15 = doc.addObject("PartDesign::Body", "Body014")

# Sketch on an angled plane
sketch31 = body15.newObject("Sketcher::SketchObject", "Sketch030")
sketch31.Placement = App.Placement(App.Vector(0, 0, 0), App.Rotation(App.Vector(0.984807753, 0.03015369, 0.171010072), App.Vector(0, -0.984807753, 0.173648178), App.Vector(0.173648178, -0.171010072, -0.96984631), "ZXY"))
add_polygon(sketch31, [(-4.5, -0.1), (-13.4, -0.1), (-14.2, -4.4), (-5.3, -4.4)])  # lines 0-3
sketch31.addConstraint([
    Sketcher.Constraint("Horizontal", 0),
    Sketcher.Constraint("Horizontal", 2),
    Sketcher.Constraint("Parallel", 1, 3),
    Sketcher.Constraint("Angle", 1, Q("-100 deg")),
    Sketcher.Constraint("DistanceX", 0, 2, 0, 1, Q("0.35 in")),
    Sketcher.Constraint("DistanceY", 1, 2, -1, 1, Q("0.175 in")),
    Sketcher.Constraint("DistanceY", 0, 2, -1, 1, Q("0.138951 mm")),
    Sketcher.Constraint("DistanceX", 0, 2, -1, 1, Q("13.428072 mm")),
])

# Sketch on an angled plane
sketch32 = body15.newObject("Sketcher::SketchObject", "Sketch031")
sketch32.Placement = App.Placement(App.Vector(-8.555332, 8.425357, 47.782575), App.Rotation(App.Vector(0.984807753, 0.03015369, 0.171010072), App.Vector(0, 0.984807753, -0.173648178), App.Vector(-0.173648178, 0.171010072, 0.96984631), "ZXY"))
add_polygon(sketch32, [(-14.2, -0.8), (-13.4, -5.3), (-4.5, -5.3), (-5.3, -0.8)])  # lines 0-3
sketch32.addConstraint([
    Sketcher.Constraint("Horizontal", 1),
    Sketcher.Constraint("Horizontal", 3),
    Sketcher.Constraint("Parallel", 0, 2),
    Sketcher.Constraint("Angle", 0, Q("-80 deg")),
    Sketcher.Constraint("DistanceX", 1, 1, 1, 2, Q("0.35 in")),
    Sketcher.Constraint("DistanceY", 1, 2, 2, 2, Q("0.175 in")),
    Sketcher.Constraint("DistanceX", 0, 2, -1, 1, Q("13.403571 mm")),
    Sketcher.Constraint("DistanceY", 0, 2, -1, 1, Q("5.275753 mm")),
])

additiveloft16 = body15.newObject("PartDesign::AdditiveLoft", "AdditiveLoft015")
additiveloft16.Profile = sketch31
additiveloft16.Sections = [sketch32]
body16 = doc.addObject("PartDesign::Body", "Body015")

# Sketch on an angled plane
sketch33 = body16.newObject("Sketcher::SketchObject", "Sketch032")
sketch33.Placement = App.Placement(App.Vector(0, 0, 0), App.Rotation(App.Vector(0.984807753, 0.03015369, 0.171010072), App.Vector(0, -0.984807753, 0.173648178), App.Vector(0.173648178, -0.171010072, -0.96984631), "ZXY"))
add_polygon(sketch33, [(7, 13), (-2, 13), (-4, 4), (5, 4)])  # lines 0-3
sketch33.addConstraint([
    Sketcher.Constraint("Horizontal", 0),
    Sketcher.Constraint("Horizontal", 2),
    Sketcher.Constraint("Parallel", 1, 3),
    Sketcher.Constraint("Angle", 1, Q("-100 deg")),
    Sketcher.Constraint("Distance", 1, Q("0.35 in")),
    Sketcher.Constraint("DistanceY", -1, 1, 1, 2, Q("0.175 in")),
    Sketcher.Constraint("DistanceX", 0, 2, 0, 1, Q("9.027143 mm")),
    Sketcher.Constraint("DistanceX", 0, 2, -1, 1, Q("2.186066 mm")),
])

# Sketch on an angled plane
sketch34 = body16.newObject("Sketcher::SketchObject", "Sketch033")
sketch34.Placement = App.Placement(App.Vector(-8.555332, 8.425357, 47.782575), App.Rotation(App.Vector(0.984807753, 0.03015369, 0.171010072), App.Vector(0, 0.984807753, -0.173648178), App.Vector(-0.173648178, 0.171010072, 0.96984631), "ZXY"))
add_polygon(sketch34, [(-4, -10), (-2, -18), (7, -18), (5, -10)])  # lines 0-3
sketch34.addConstraint([
    Sketcher.Constraint("Horizontal", 1),
    Sketcher.Constraint("Horizontal", 3),
    Sketcher.Constraint("Parallel", 0, 2),
    Sketcher.Constraint("Angle", 0, Q("-80 deg")),
    Sketcher.Constraint("Distance", 0, Q("0.35 in")),
    Sketcher.Constraint("DistanceX", 1, 1, 1, 2, Q("9.027143 mm")),
    Sketcher.Constraint("DistanceX", 0, 2, -1, 1, Q("2.186066 mm")),
    Sketcher.Constraint("DistanceY", 0, 2, -1, 1, Q("18.475694 mm")),
])

additiveloft17 = body16.newObject("PartDesign::AdditiveLoft", "AdditiveLoft016")
additiveloft17.Profile = sketch33
additiveloft17.Sections = [sketch34]

doc.recompute()
